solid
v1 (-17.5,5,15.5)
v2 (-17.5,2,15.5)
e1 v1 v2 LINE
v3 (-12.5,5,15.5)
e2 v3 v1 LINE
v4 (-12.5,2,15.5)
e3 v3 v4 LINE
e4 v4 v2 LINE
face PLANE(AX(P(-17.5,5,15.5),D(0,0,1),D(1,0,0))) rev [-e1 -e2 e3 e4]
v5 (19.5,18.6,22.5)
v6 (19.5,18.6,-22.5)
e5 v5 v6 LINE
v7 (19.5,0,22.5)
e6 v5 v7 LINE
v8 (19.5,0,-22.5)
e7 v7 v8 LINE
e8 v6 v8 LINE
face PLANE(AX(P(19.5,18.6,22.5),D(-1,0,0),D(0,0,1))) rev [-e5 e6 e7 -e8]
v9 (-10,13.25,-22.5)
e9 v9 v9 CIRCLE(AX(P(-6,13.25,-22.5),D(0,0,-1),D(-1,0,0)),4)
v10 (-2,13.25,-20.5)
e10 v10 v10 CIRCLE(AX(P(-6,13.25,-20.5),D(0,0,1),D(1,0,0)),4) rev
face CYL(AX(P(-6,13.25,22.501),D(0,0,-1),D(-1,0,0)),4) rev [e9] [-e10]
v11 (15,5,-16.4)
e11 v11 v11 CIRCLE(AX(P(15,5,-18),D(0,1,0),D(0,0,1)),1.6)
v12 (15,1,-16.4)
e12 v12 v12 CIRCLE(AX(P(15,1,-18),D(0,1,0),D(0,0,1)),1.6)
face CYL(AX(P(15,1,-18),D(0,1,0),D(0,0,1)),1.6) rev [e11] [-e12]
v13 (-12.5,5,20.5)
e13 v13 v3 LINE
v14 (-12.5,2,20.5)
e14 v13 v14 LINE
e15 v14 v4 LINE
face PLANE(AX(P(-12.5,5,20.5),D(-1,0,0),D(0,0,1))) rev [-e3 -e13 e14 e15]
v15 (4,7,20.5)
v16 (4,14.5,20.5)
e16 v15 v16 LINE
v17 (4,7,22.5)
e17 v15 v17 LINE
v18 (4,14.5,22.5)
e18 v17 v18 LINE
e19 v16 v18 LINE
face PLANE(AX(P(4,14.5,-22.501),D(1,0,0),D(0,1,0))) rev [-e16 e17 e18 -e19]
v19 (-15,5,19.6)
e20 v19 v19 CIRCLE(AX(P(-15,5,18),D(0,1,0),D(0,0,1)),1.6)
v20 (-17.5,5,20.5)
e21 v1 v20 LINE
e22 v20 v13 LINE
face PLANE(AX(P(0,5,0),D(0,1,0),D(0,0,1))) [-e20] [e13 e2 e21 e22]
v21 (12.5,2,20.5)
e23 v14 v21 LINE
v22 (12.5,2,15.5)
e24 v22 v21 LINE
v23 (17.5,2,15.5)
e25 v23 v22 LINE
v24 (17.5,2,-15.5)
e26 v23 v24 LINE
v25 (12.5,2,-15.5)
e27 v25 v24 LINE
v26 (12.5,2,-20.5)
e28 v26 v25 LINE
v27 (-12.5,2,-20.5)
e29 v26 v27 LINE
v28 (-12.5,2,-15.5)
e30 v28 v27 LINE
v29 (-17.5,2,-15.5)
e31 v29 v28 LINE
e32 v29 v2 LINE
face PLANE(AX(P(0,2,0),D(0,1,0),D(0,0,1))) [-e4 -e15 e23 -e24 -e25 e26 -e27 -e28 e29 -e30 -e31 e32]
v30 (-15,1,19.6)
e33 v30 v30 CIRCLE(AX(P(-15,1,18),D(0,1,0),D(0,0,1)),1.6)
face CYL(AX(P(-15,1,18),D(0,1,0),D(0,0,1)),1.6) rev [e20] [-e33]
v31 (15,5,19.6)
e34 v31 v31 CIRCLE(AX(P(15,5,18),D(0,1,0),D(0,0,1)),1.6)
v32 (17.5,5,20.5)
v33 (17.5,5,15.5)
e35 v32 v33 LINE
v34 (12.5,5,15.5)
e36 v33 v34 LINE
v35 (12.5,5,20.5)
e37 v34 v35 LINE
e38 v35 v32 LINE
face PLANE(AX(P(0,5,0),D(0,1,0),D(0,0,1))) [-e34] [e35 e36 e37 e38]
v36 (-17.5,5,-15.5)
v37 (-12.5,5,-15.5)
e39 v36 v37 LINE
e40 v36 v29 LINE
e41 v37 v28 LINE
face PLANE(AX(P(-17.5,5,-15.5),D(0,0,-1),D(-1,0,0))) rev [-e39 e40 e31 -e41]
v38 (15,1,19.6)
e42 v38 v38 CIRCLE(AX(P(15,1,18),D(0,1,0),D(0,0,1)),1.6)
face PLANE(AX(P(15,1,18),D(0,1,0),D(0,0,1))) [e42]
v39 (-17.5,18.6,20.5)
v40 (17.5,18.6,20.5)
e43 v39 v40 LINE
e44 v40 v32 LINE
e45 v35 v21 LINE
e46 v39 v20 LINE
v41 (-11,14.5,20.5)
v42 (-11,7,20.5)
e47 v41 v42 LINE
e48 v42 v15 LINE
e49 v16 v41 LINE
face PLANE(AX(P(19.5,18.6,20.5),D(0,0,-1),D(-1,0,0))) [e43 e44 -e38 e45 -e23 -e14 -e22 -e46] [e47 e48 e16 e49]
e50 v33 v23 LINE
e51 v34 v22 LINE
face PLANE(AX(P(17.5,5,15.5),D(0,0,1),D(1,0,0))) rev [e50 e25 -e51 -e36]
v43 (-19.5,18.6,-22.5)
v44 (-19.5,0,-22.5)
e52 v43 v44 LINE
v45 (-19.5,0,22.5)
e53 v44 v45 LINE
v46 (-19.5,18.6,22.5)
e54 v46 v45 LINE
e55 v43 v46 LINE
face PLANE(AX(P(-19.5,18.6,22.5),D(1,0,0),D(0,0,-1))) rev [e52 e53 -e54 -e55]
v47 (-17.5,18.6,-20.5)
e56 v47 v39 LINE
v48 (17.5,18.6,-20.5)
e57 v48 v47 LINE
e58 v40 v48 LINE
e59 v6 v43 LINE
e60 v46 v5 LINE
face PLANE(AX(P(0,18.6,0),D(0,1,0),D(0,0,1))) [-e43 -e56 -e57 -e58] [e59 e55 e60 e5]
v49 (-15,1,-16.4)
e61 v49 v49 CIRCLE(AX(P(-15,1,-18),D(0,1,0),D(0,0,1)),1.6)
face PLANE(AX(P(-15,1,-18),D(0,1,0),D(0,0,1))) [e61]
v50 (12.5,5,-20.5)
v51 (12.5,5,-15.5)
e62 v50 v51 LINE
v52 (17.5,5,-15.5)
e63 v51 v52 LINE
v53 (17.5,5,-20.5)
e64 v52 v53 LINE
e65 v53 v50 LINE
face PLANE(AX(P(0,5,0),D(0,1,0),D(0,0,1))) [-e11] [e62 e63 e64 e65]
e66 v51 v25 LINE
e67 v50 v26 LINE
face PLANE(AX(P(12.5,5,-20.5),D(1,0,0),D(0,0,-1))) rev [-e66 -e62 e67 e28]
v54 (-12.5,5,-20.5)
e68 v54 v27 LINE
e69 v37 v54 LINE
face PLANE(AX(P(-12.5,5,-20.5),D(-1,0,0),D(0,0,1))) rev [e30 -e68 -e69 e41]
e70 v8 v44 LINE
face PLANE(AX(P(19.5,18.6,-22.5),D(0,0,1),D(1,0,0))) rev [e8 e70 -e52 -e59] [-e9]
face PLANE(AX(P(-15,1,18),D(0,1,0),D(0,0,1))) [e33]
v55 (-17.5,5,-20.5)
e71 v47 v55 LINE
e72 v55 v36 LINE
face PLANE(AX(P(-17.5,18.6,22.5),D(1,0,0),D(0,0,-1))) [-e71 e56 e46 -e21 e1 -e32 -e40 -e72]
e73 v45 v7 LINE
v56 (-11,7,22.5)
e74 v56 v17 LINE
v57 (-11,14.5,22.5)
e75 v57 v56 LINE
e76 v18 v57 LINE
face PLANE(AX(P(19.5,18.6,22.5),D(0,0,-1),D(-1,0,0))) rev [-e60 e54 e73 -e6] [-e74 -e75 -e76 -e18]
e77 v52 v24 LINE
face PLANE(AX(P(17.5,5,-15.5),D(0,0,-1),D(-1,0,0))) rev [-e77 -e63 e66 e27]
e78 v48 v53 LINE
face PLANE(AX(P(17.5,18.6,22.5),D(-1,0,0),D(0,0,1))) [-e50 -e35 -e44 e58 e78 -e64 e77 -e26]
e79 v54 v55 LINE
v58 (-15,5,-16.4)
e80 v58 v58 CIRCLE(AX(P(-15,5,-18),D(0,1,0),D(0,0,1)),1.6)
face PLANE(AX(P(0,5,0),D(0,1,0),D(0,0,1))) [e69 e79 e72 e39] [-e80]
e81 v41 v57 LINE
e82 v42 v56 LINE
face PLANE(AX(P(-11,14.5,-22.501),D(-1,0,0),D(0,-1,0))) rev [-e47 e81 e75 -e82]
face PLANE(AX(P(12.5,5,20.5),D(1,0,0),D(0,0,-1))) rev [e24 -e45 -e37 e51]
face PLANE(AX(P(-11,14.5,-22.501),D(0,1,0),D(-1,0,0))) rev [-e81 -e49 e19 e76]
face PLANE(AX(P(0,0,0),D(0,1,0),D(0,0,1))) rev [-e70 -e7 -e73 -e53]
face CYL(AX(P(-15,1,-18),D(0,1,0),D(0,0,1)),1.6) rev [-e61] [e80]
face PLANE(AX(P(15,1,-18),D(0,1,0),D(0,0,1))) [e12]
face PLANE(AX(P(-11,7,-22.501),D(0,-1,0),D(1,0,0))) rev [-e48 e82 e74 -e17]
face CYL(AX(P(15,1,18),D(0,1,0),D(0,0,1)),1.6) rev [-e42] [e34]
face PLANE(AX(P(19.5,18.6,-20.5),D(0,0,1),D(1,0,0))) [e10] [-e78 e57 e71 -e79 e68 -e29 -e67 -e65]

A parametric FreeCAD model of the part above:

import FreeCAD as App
import Part
import Sketcher

V = App.Vector
Q = App.Units.Quantity


def faces_at(feature, points):
    """Names of the faces that lie closest to the given points."""
    faces = feature.Shape.Faces
    near = lambda p: min(range(len(faces)), key=lambda i: faces[i].distToShape(Part.Vertex(*p))[0])
    return sorted({f"Face{near(p) + 1}" for p in points})


def add_polygon(sketch, points):
    """Adds a closed chain of lines whose ends are joined by coincident constraints."""
    first, n = sketch.GeometryCount, len(points)
    for a, b in zip(points, points[1:] + points[:1]):
        sketch.addGeometry(Part.LineSegment(App.Vector(*a, 0), App.Vector(*b, 0)), False)
    for i in range(n):
        sketch.addConstraint(Sketcher.Constraint("Coincident", first + i, 2, first + (i + 1) % n, 1))

doc = App.newDocument("Part")
body = doc.addObject("PartDesign::Body", "Body")

# Sketch on XZ plane
sketch1 = body.newObject("Sketcher::SketchObject", "Sketch")
sketch1.AttachmentSupport = (doc.getObject("XZ_Plane"), [""])
sketch1.MapMode = "FlatFace"
add_polygon(sketch1, [(-20, -22), (-20, 22), (20, 22), (20, -22)])  # lines 0-3
sketch1.addConstraint(Sketcher.Constraint("Vertical", 0))
sketch1.addConstraint(Sketcher.Constraint("Horizontal", 1))
sketch1.addConstraint(Sketcher.Constraint("Vertical", 2))
sketch1.addConstraint(Sketcher.Constraint("Horizontal", 3))
sketch1.addConstraint(Sketcher.Constraint("Symmetric", 0, 2, 2, 2, -1, 1))
sketch1.addConstraint(Sketcher.Constraint("DistanceX", 1, 1, 1, 2, Q("39 mm")))
sketch1.addConstraint(Sketcher.Constraint("DistanceY", 0, 1, 0, 2, Q("45 mm")))
pad1 = body.newObject("PartDesign::Pad", "Pad")
pad1.Profile = sketch1
pad1.Length = 18.6
pad1.Reversed = True
doc.recompute()

thickness = body.newObject("PartDesign::Thickness", "Thickness")
thickness.Base = (pad1, faces_at(pad1, [(0, 18.6, 0)]))
thickness.Value = 2
thickness.Reversed = True
thickness.Join = "Intersection"

# Sketch on XZ plane
sketch2 = body.newObject("Sketcher::SketchObject", "Sketch001")
sketch2.AttachmentSupport = (doc.getObject("XZ_Plane"), [""])
sketch2.MapMode = "FlatFace"
sketch2.AttachmentOffset = App.Placement(V(0, 0, -2), App.Rotation())
add_polygon(sketch2, [(-18, -20), (-18, -16), (-12, -16), (-12, -20)])  # lines 0-3
add_polygon(sketch2, [(12, -20), (12, -16), (18, -16), (18, -20)])  # lines 4-7
add_polygon(sketch2, [(12, 16), (12, 20), (18, 20), (18, 16)])  # lines 8-11
add_polygon(sketch2, [(-18, 16), (-18, 20), (-12, 20), (-12, 16)])  # lines 12-15
sketch2.addConstraint(Sketcher.Constraint("Vertical", 0))
sketch2.addConstraint(Sketcher.Constraint("Horizontal", 1))
sketch2.addConstraint(Sketcher.Constraint("Vertical", 2))
sketch2.addConstraint(Sketcher.Constraint("Horizontal", 3))
sketch2.addConstraint(Sketcher.Constraint("Vertical", 4))
sketch2.addConstraint(Sketcher.Constraint("Horizontal", 5))
sketch2.addConstraint(Sketcher.Constraint("Vertical", 6))
sketch2.addConstraint(Sketcher.Constraint("Horizontal", 7))
sketch2.addConstraint(Sketcher.Constraint("Vertical", 8))
sketch2.addConstraint(Sketcher.Constraint("Horizontal", 9))
sketch2.addConstraint(Sketcher.Constraint("Vertical", 10))
sketch2.addConstraint(Sketcher.Constraint("Horizontal", 11))
sketch2.addConstraint(Sketcher.Constraint("Vertical", 12))
sketch2.addConstraint(Sketcher.Constraint("Horizontal", 13))
sketch2.addConstraint(Sketcher.Constraint("Vertical", 14))
sketch2.addConstraint(Sketcher.Constraint("Horizontal", 15))
sketch2.addConstraint(Sketcher.Constraint("Symmetric", 2, 2, 8, 2, -1, 1))
sketch2.addConstraint(Sketcher.Constraint("Symmetric", 0, 2, 10, 2, -1, 1))
sketch2.addConstraint(Sketcher.Constraint("Symmetric", 6, 2, 12, 2, -1, 1))
sketch2.addConstraint(Sketcher.Constraint("Symmetric", 4, 2, 14, 2, -1, 1))
sketch2.addConstraint(Sketcher.Constraint("Symmetric", 1, 2, 4, 2, -2))
sketch2.addConstraint(Sketcher.Constraint("Symmetric", 3, 2, 6, 2, -2))
sketch2.addConstraint(Sketcher.Constraint("Equal", 15, 0))
sketch2.addConstraint(Sketcher.Constraint("DistanceX", 1, 1, 1, 2, Q("5 mm")))
sketch2.addConstraint(Sketcher.Constraint("DistanceX", 1, 2, 4, 2, Q("25 mm")))
sketch2.addConstraint(Sketcher.Constraint("DistanceY", 4, 2, 8, 2, Q("36 mm")))
pad2 = body.newObject("PartDesign::Pad", "Pad001")
pad2.Profile = sketch2
pad2.Length = 3
pad2.Reversed = True

# Sketch on XZ plane
sketch3 = body.newObject("Sketcher::SketchObject", "Sketch002")
sketch3.AttachmentSupport = (doc.getObject("XZ_Plane"), [""])
sketch3.MapMode = "FlatFace"
sketch3.AttachmentOffset = App.Placement(V(0, 0, -5), App.Rotation())
sketch3.addGeometry(Part.Circle(V(-15, -18, 0), V(0, 0, 1), 1.6), False)
sketch3.addGeometry(Part.Circle(V(15, -18, 0), V(0, 0, 1), 1.6), False)
sketch3.addGeometry(Part.Circle(V(15, 18, 0), V(0, 0, 1), 1.6), False)
sketch3.addGeometry(Part.Circle(V(-15, 18, 0), V(0, 0, 1), 1.6), False)
sketch3.addConstraint(Sketcher.Constraint("Equal", 0, 1))
sketch3.addConstraint(Sketcher.Constraint("Equal", 1, 2))
sketch3.addConstraint(Sketcher.Constraint("Equal", 2, 3))
sketch3.addConstraint(Sketcher.Constraint("Symmetric", 0, 3, 2, 3, -1, 1))
sketch3.addConstraint(Sketcher.Constraint("Symmetric", 1, 3, 3, 3, -1, 1))
sketch3.addConstraint(Sketcher.Constraint("Symmetric", 0, 3, 1, 3, -2))
sketch3.addConstraint(Sketcher.Constraint("Diameter", 0, Q("3.2 mm")))
sketch3.addConstraint(Sketcher.Constraint("DistanceX", 0, 3, -1, 1, Q("15 mm")))
sketch3.addConstraint(Sketcher.Constraint("DistanceY", 0, 3, -1, 1, Q("18 mm")))
pocket1 = body.newObject("PartDesign::Pocket", "Pocket")
pocket1.Profile = sketch3
pocket1.Length = 4
pocket1.Reversed = True

# Sketch on XY plane
sketch4 = body.newObject("Sketcher::SketchObject", "Sketch003")
sketch4.AttachmentSupport = (doc.getObject("XY_Plane"), [""])
sketch4.MapMode = "FlatFace"
sketch4.AttachmentOffset = App.Placement(V(0, 0, 22.5), App.Rotation())
add_polygon(sketch4, [(-11, 14), (-11, 7), (4, 7), (4, 14)])  # lines 0-3
sketch4.addConstraint(Sketcher.Constraint("Vertical", 0))
sketch4.addConstraint(Sketcher.Constraint("Horizontal", 1))
sketch4.addConstraint(Sketcher.Constraint("Vertical", 2))
sketch4.addConstraint(Sketcher.Constraint("Horizontal", 3))
sketch4.addConstraint(Sketcher.Constraint("DistanceX", 1, 1, 1, 2, Q("15 mm")))
sketch4.addConstraint(Sketcher.Constraint("DistanceY", 0, 2, 0, 1, Q("7.5 mm")))
sketch4.addConstraint(Sketcher.Constraint("DistanceX", 0, 2, -1, 1, Q("11 mm")))
sketch4.addConstraint(Sketcher.Constraint("DistanceY", -1, 1, 0, 2, Q("7 mm")))
pocket2 = body.newObject("PartDesign::Pocket", "Pocket001")
pocket2.Profile = sketch4
pocket2.Type = "UpToFirst"

# Sketch on XY plane
sketch5 = body.newObject("Sketcher::SketchObject", "Sketch004")
sketch5.AttachmentSupport = (doc.getObject("XY_Plane"), [""])
sketch5.MapMode = "FlatFace"
sketch5.AttachmentOffset = App.Placement(V(0, 0, -22.5), App.Rotation())
sketch5.addGeometry(Part.Circle(V(-6, 13.2, 0), V(0, 0, 1), 4), False)
sketch5.addConstraint(Sketcher.Constraint("Diameter", 0, Q("8 mm")))
sketch5.addConstraint(Sketcher.Constraint("DistanceX", 0, 3, -1, 1, Q("6 mm")))
sketch5.addConstraint(Sketcher.Constraint("DistanceY", -1, 1, 0, 3, Q("13.25 mm")))
pocket3 = body.newObject("PartDesign::Pocket", "Pocket002")
pocket3.Profile = sketch5
pocket3.Type = "UpToFirst"
pocket3.Reversed = True

doc.recompute()
